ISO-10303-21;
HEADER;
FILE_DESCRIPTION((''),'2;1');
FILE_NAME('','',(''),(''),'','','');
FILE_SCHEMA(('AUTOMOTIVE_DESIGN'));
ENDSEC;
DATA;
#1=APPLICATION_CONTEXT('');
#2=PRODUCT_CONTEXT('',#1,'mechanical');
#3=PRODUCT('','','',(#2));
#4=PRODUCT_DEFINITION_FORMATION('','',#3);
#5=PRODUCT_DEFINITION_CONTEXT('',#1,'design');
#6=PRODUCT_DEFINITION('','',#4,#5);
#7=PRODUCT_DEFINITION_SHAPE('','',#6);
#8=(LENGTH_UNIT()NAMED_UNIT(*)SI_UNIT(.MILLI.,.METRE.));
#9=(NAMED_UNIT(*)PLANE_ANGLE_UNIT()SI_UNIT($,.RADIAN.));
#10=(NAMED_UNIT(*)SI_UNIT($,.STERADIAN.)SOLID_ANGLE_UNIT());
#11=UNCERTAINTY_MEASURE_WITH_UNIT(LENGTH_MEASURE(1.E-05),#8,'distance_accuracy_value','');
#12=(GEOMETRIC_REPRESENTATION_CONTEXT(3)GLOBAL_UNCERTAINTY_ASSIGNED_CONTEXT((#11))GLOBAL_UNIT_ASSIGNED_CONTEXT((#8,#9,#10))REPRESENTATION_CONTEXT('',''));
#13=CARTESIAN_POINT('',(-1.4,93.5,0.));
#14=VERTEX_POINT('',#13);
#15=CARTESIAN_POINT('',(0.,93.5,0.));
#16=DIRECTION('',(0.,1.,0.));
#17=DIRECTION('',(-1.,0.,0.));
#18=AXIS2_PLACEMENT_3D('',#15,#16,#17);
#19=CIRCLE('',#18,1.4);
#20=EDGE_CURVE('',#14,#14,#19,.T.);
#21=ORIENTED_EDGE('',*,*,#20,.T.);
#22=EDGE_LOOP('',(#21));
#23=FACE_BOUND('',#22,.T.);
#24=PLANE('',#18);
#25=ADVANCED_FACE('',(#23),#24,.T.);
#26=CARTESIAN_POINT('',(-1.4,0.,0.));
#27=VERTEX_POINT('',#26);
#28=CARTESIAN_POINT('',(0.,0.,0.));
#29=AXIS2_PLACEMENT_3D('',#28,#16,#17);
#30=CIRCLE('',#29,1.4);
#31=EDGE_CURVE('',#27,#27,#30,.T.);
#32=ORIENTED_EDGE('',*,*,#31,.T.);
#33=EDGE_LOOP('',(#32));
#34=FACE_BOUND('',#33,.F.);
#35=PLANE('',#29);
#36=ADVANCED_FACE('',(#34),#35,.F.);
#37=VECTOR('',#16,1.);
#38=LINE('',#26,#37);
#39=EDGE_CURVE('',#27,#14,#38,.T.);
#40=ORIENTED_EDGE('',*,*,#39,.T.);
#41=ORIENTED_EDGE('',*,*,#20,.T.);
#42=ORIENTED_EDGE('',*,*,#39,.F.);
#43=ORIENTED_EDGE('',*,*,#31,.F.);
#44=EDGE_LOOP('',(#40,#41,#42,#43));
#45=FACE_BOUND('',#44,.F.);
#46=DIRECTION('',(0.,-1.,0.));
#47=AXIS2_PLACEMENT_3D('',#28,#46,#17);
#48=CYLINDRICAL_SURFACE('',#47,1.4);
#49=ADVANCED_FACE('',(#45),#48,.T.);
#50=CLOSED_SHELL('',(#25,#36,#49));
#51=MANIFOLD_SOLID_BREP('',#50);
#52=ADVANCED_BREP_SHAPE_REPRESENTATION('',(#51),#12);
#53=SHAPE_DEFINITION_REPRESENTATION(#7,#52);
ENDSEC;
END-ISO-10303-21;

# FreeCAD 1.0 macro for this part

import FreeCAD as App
import Part
import Sketcher

doc = App.newDocument("Part")
body = doc.addObject("PartDesign::Body", "Body")

# Sketch on XZ plane
sketch1 = body.newObject("Sketcher::SketchObject", "Sketch")
sketch1.AttachmentSupport = (doc.getObject("XZ_Plane"), [""])
sketch1.MapMode = "FlatFace"
sketch1.addGeometry(Part.Circle(App.Vector(0, 0, 0), App.Vector(0, 0, 1), 1.4), False)
sketch1.addConstraint(Sketcher.Constraint("Coincident", 0, 3, -1, 1))
sketch1.addConstraint(Sketcher.Constraint("Diameter", 0, 2.8))
pad1 = body.newObject("PartDesign::Pad", "Pad")
pad1.Profile = sketch1
pad1.Length = 93.5
pad1.Reversed = True

doc.recompute()
